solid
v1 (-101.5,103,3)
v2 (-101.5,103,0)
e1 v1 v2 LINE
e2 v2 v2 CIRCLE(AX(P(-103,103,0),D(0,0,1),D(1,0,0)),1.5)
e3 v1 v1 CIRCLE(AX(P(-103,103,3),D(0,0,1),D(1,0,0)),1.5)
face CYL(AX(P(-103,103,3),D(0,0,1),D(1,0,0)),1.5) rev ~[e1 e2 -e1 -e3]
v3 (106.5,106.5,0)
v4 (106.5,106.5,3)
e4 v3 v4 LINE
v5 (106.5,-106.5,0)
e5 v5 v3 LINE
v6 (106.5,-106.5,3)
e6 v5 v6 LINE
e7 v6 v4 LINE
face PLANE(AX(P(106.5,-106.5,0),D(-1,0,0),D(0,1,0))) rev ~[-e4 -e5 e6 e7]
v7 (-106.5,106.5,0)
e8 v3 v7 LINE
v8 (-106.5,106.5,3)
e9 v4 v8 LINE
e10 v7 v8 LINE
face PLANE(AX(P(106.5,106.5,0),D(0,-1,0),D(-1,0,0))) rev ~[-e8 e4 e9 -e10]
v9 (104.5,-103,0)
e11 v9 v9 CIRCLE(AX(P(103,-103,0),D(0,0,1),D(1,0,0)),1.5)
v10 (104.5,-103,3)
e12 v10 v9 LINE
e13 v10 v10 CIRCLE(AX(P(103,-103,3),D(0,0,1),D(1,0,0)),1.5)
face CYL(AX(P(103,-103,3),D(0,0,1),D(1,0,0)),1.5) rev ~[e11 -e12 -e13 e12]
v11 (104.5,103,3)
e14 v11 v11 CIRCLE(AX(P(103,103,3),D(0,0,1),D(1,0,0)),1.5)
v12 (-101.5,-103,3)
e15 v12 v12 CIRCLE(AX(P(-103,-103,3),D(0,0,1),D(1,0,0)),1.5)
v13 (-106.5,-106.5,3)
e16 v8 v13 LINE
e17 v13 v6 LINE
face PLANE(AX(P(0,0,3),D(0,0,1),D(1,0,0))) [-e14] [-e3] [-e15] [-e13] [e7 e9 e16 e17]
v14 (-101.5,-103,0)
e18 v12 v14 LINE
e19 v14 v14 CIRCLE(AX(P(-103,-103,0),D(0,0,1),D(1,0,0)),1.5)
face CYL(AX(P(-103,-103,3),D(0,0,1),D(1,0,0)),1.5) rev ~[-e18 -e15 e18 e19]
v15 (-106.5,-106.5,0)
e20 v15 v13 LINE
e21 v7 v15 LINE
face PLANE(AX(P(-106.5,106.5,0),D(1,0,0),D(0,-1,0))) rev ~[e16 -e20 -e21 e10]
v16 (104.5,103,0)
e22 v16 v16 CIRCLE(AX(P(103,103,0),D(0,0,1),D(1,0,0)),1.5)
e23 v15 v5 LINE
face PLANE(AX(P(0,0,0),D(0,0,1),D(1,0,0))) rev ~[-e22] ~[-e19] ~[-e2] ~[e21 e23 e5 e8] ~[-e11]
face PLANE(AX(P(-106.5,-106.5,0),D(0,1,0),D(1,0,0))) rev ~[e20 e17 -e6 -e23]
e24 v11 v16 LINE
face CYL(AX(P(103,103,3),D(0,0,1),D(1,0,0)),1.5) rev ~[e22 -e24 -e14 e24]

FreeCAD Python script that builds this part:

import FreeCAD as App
import Part
import Sketcher

V = App.Vector
Q = App.Units.Quantity


def add_polygon(sketch, points):
    """Adds a closed chain of lines whose ends are joined by coincident constraints."""
    first, n = sketch.GeometryCount, len(points)
    for a, b in zip(points, points[1:] + points[:1]):
        sketch.addGeometry(Part.LineSegment(App.Vector(*a, 0), App.Vector(*b, 0)), False)
    for i in range(n):
        sketch.addConstraint(Sketcher.Constraint("Coincident", first + i, 2, first + (i + 1) % n, 1))

doc = App.newDocument("Part")
body = doc.addObject("PartDesign::Body", "Body")

sketch1 = body.newObject("Sketcher::SketchObject", "Sketch")
sketch1.AttachmentSupport = (doc.getObject("XY_Plane"), [""])
sketch1.MapMode = "FlatFace"
add_polygon(sketch1, [(-106, 106), (-106, -106), (106, -106), (106, 106)])
sketch1.addConstraint([
    Sketcher.Constraint("Vertical", 0),
    Sketcher.Constraint("Horizontal", 1),
    Sketcher.Constraint("Vertical", 2),
    Sketcher.Constraint("Horizontal", 3),
    Sketcher.Constraint("Symmetric", 0, 2, 2, 2, -1, 1),
    Sketcher.Constraint("Equal", 3, 0),
    Sketcher.Constraint("DistanceX", 1, 1, 1, 2, Q("213 mm")),
])
pad1 = body.newObject("PartDesign::Pad", "Pad")
pad1.Profile = sketch1
pad1.Length = 3

sketch2 = body.newObject("Sketcher::SketchObject", "Sketch001")
sketch2.AttachmentSupport = (doc.getObject("XY_Plane"), [""])
sketch2.MapMode = "FlatFace"
sketch2.AttachmentOffset = App.Placement(V(0, 0, 3), App.Rotation())
sketch2.addGeometry([
    Part.Circle(V(-103, 103, 0), V(0, 0, 1), 1.5),
    Part.Circle(V(103, 103, 0), V(0, 0, 1), 1.5),
    Part.Circle(V(-103, -103, 0), V(0, 0, 1), 1.5),
    Part.Circle(V(103, -103, 0), V(0, 0, 1), 1.5),
], False)
sketch2.addConstraint([
    Sketcher.Constraint("Equal", 0, 1),
    Sketcher.Constraint("Equal", 1, 2),
    Sketcher.Constraint("Equal", 2, 3),
    Sketcher.Constraint("Symmetric", 1, 3, 2, 3, -1, 1),
    Sketcher.Constraint("Symmetric", 0, 3, 3, 3, -1, 1),
    Sketcher.Constraint("Symmetric", 0, 3, 1, 3, -2),
    Sketcher.Constraint("Diameter", 0, Q("3 mm")),
    Sketcher.Constraint("DistanceX", 0, 3, -1, 1, Q("103 mm")),
    Sketcher.Constraint("DistanceY", -1, 1, 0, 3, Q("103 mm")),
])
pocket1 = body.newObject("PartDesign::Pocket", "Pocket")
pocket1.Profile = sketch2
pocket1.Type = "ThroughAll"

doc.recompute()
